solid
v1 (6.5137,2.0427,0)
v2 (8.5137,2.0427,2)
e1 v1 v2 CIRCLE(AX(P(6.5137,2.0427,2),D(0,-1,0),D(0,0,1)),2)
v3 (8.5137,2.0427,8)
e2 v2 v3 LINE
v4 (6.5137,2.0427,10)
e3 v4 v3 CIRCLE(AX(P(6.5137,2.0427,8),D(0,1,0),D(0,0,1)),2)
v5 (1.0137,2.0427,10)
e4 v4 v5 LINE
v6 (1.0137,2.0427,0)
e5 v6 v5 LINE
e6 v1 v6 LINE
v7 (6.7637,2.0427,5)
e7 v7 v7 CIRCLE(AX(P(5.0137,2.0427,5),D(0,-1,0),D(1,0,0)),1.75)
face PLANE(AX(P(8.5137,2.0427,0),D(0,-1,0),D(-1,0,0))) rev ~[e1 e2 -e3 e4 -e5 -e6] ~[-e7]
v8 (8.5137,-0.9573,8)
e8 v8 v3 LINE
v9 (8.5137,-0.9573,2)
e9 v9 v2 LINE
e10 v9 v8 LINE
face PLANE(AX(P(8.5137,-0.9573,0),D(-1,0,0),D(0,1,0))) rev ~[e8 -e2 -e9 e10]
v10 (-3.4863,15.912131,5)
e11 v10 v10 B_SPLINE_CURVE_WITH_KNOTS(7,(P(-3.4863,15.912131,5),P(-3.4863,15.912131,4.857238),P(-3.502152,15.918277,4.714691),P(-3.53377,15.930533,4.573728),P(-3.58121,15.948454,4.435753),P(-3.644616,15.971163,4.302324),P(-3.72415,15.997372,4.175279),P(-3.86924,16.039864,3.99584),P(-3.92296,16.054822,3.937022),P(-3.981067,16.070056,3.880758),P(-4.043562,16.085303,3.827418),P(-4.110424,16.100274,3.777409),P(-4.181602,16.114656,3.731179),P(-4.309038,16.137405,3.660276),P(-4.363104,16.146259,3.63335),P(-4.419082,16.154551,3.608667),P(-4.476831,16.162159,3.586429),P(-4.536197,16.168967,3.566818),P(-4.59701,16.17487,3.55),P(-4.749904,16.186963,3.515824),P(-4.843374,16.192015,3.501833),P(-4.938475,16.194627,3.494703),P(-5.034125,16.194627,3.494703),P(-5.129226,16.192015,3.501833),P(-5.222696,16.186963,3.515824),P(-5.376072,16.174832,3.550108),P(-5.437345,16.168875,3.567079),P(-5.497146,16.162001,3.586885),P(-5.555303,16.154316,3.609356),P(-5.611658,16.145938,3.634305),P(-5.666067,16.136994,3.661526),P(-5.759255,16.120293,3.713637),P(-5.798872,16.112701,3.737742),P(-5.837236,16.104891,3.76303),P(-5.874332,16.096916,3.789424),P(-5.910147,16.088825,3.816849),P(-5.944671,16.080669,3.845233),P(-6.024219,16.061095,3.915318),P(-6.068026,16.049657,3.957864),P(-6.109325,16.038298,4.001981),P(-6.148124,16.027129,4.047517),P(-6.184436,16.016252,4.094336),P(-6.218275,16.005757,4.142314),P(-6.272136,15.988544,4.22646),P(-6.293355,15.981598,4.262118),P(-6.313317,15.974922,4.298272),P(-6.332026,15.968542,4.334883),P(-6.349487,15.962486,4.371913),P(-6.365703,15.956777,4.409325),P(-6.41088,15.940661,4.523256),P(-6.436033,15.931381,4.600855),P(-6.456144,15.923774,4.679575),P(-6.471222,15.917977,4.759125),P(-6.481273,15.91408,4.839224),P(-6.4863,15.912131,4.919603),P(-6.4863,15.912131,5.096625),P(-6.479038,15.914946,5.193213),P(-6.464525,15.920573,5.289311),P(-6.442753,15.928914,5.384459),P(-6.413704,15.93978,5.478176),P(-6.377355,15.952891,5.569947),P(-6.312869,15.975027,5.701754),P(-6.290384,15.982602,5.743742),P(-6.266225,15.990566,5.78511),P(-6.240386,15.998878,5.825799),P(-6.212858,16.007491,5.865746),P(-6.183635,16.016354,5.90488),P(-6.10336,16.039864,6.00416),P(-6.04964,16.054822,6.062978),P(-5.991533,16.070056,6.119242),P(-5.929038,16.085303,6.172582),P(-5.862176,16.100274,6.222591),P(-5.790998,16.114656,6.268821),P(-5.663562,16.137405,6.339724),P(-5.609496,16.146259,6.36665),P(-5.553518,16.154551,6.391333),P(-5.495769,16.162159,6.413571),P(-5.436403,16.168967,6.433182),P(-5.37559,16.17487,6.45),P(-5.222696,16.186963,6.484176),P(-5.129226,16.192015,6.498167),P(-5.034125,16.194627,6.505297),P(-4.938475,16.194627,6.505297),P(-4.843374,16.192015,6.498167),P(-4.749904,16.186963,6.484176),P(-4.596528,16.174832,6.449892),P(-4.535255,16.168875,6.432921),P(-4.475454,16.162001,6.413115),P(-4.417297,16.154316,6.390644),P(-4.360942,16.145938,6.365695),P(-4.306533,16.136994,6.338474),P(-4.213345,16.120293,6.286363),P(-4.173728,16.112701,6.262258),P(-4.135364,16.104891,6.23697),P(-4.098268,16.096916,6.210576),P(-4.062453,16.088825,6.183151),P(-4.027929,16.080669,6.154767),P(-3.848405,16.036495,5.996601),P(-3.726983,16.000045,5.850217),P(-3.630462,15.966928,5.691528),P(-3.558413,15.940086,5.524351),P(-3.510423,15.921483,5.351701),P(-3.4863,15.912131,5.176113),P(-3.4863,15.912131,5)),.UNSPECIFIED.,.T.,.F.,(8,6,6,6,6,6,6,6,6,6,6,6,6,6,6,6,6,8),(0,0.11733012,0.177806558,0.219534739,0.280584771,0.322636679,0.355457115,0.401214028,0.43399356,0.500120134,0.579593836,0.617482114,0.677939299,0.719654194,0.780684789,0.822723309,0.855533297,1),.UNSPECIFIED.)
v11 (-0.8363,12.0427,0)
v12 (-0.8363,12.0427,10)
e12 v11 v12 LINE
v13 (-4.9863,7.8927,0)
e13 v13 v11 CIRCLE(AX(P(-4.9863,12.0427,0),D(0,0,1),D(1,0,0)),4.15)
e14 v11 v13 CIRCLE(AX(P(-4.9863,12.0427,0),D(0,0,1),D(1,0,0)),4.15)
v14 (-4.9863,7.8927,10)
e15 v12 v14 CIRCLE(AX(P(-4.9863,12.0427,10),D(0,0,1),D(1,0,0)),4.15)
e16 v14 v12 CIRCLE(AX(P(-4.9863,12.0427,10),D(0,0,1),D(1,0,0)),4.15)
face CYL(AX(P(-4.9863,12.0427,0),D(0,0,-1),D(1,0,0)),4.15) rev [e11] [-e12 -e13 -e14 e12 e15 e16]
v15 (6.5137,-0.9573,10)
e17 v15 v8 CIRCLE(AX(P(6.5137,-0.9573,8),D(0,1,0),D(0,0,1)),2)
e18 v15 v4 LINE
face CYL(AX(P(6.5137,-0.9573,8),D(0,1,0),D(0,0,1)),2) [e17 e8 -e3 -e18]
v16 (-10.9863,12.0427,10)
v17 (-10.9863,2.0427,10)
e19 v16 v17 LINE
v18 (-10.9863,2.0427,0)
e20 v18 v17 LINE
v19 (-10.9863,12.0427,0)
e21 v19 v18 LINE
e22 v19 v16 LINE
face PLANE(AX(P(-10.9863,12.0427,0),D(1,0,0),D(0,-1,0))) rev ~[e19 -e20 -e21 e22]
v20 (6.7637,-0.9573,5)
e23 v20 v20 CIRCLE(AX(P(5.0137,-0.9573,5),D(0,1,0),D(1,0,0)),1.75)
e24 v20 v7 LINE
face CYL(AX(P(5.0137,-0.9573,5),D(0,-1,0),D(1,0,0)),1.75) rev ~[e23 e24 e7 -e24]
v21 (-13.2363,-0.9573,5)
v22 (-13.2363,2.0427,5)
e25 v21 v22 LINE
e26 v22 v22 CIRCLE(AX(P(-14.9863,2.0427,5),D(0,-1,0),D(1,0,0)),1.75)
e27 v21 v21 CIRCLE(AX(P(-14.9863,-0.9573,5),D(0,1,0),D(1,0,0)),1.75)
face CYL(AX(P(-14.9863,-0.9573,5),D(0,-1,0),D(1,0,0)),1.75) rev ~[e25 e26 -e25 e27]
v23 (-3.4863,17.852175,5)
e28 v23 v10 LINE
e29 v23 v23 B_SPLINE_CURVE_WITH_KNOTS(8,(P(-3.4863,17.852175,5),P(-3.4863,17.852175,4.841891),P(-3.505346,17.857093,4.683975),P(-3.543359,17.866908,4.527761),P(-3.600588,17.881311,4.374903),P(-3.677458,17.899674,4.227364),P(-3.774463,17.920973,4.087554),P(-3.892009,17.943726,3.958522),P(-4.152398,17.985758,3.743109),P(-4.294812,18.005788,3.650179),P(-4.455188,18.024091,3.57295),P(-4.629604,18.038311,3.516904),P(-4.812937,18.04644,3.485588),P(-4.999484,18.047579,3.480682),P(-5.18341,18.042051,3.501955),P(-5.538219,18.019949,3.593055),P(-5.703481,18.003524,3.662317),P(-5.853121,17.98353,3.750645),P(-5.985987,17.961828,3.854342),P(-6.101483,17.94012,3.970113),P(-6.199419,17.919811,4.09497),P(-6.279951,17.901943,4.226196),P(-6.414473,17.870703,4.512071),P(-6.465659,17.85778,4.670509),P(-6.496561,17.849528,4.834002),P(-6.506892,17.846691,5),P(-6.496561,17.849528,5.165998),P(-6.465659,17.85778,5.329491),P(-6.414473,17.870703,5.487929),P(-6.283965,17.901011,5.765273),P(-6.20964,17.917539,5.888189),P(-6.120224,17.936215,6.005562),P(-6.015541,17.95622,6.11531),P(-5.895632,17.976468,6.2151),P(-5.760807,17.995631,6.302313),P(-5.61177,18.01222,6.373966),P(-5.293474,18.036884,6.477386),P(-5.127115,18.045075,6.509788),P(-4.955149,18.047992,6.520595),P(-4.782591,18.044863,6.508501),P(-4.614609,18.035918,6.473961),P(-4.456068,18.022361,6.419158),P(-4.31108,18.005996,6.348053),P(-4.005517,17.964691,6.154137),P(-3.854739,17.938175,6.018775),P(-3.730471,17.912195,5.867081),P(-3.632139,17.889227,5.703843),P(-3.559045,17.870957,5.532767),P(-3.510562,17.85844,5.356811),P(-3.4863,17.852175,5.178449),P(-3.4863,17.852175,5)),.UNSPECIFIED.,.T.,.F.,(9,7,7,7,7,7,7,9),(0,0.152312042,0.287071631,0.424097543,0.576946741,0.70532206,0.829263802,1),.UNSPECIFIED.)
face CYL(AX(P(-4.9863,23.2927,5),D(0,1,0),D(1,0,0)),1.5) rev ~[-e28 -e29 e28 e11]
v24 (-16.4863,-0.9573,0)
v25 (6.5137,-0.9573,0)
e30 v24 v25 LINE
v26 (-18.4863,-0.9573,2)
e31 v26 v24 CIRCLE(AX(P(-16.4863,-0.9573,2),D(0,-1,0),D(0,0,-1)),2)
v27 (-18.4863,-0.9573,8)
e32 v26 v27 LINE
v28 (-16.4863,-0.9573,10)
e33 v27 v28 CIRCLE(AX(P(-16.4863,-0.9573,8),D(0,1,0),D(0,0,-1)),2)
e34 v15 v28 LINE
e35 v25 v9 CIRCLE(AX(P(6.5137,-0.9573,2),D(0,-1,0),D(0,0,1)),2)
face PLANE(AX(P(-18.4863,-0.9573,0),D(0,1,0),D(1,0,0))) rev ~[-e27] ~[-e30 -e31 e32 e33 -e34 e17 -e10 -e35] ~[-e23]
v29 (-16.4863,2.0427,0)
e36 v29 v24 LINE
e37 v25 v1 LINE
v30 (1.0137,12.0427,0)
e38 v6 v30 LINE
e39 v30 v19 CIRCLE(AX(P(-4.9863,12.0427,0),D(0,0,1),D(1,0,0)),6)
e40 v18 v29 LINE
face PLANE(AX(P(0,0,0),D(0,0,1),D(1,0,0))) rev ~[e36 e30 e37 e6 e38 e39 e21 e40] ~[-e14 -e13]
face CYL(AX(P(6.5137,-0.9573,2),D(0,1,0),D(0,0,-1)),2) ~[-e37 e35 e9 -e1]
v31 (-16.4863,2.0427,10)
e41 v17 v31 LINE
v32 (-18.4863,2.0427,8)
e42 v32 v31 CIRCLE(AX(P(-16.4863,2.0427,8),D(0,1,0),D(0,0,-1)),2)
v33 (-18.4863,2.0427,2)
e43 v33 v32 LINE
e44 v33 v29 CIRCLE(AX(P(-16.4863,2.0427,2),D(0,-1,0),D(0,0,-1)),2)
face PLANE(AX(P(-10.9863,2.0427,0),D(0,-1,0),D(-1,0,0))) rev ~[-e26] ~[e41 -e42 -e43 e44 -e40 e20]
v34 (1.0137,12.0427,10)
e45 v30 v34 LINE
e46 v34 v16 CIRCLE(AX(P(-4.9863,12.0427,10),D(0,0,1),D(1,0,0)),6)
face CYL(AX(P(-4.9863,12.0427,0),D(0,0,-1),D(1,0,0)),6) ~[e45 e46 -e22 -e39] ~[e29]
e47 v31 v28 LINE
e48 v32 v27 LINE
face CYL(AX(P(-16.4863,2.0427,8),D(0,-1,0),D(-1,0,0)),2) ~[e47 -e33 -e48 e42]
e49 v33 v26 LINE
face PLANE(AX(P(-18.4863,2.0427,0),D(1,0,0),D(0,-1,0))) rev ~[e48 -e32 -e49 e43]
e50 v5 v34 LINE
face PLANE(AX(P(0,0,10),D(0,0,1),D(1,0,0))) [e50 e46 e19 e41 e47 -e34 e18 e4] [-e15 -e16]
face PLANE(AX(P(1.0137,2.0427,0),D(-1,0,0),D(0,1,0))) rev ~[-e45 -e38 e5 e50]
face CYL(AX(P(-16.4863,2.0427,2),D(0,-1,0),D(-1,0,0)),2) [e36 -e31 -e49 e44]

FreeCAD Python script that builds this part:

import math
import FreeCAD as App
import Part
import Sketcher


def edges_at(feature, points):
    """Names of the edges that pass closest to the given points."""
    edges = feature.Shape.Edges
    near = lambda p: min(range(len(edges)), key=lambda i: edges[i].distToShape(Part.Vertex(*p))[0])
    return sorted({f"Edge{near(p) + 1}" for p in points})

doc = App.newDocument("Part")
body = doc.addObject("PartDesign::Body", "Body")

sketch1 = doc.addObject("Sketcher::SketchObject", "Sketch")
body.addObject(sketch1)
sketch1.AttachmentSupport = (doc.XY_Plane, [""])
sketch1.MapMode = "FlatFace"
sketch1.addGeometry(Part.LineSegment(App.Vector(-18.5, 2, 0), App.Vector(-18.5, -1, 0)), False)
sketch1.addGeometry(Part.LineSegment(App.Vector(-18.5, -1, 0), App.Vector(8.5, -1, 0)), False)
sketch1.addGeometry(Part.LineSegment(App.Vector(8.5, -1, 0), App.Vector(8.5, 2, 0)), False)
sketch1.addGeometry(Part.LineSegment(App.Vector(8.5, 2, 0), App.Vector(1, 2, 0)), False)
sketch1.addGeometry(Part.LineSegment(App.Vector(1, 2, 0), App.Vector(1, 12, 0)), False)
sketch1.addGeometry(Part.ArcOfCircle(Part.Circle(App.Vector(-5, 12, 0), App.Vector(0, 0, 1), 6), math.radians(0), math.radians(180)), False)
sketch1.addGeometry(Part.LineSegment(App.Vector(-11, 12, 0), App.Vector(-11, 2, 0)), False)
sketch1.addGeometry(Part.LineSegment(App.Vector(-11, 2, 0), App.Vector(-18.5, 2, 0)), False)
sketch1.addGeometry(Part.Circle(App.Vector(-5, 12, 0), App.Vector(0, 0, 1), 4.2), False)
sketch1.addConstraint(Sketcher.Constraint("Coincident", 0, 2, 1, 1))
sketch1.addConstraint(Sketcher.Constraint("Coincident", 1, 2, 2, 1))
sketch1.addConstraint(Sketcher.Constraint("Coincident", 2, 2, 3, 1))
sketch1.addConstraint(Sketcher.Constraint("Coincident", 3, 2, 4, 1))
sketch1.addConstraint(Sketcher.Constraint("Tangent", 4, 2, 5, 1))
sketch1.addConstraint(Sketcher.Constraint("Tangent", 5, 2, 6, 1))
sketch1.addConstraint(Sketcher.Constraint("Coincident", 6, 2, 7, 1))
sketch1.addConstraint(Sketcher.Constraint("Coincident", 7, 2, 0, 1))
sketch1.addConstraint(Sketcher.Constraint("Vertical", 0))
sketch1.addConstraint(Sketcher.Constraint("Horizontal", 1))
sketch1.addConstraint(Sketcher.Constraint("Vertical", 2))
sketch1.addConstraint(Sketcher.Constraint("Horizontal", 3))
sketch1.addConstraint(Sketcher.Constraint("Vertical", 4))
sketch1.addConstraint(Sketcher.Constraint("Vertical", 6))
sketch1.addConstraint(Sketcher.Constraint("Horizontal", 7))
sketch1.addConstraint(Sketcher.Constraint("Coincident", 8, 3, 5, 3))
sketch1.addConstraint(Sketcher.Constraint("Horizontal", 3, 2, 6, 2))
sketch1.addConstraint(Sketcher.Constraint("Equal", 3, 7))
sketch1.addConstraint(Sketcher.Constraint("Radius", 5, 6.0))
sketch1.addConstraint(Sketcher.Constraint("Diameter", 8, 8.3))
sketch1.addConstraint(Sketcher.Constraint("DistanceX", 1, 1, 1, 2, 27.0))
sketch1.addConstraint(Sketcher.Constraint("DistanceY", 0, 2, 0, 1, 3.0))
sketch1.addConstraint(Sketcher.Constraint("DistanceY", 4, 1, 4, 2, 10.0))
sketch1.addConstraint(Sketcher.Constraint("DistanceX", 5, 3, -1, 1, 4.9863))
sketch1.addConstraint(Sketcher.Constraint("DistanceY", -1, 1, 5, 3, 12.0427))
pad1 = doc.addObject("PartDesign::Pad", "Pad")
body.addObject(pad1)
pad1.Profile = sketch1
pad1.Length = 10

sketch2 = doc.addObject("Sketcher::SketchObject", "Sketch001")
body.addObject(sketch2)
sketch2.AttachmentSupport = (doc.XZ_Plane, [""])
sketch2.MapMode = "FlatFace"
sketch2.AttachmentOffset = App.Placement(App.Vector(0, 0, 0.9573), App.Rotation())
sketch2.addGeometry(Part.Circle(App.Vector(-15, 5, 0), App.Vector(0, 0, 1), 1.8), False)
sketch2.addGeometry(Part.Circle(App.Vector(5, 5, 0), App.Vector(0, 0, 1), 1.8), False)
sketch2.addConstraint(Sketcher.Constraint("Equal", 0, 1))
sketch2.addConstraint(Sketcher.Constraint("Horizontal", 0, 3, 1, 3))
sketch2.addConstraint(Sketcher.Constraint("Diameter", 0, 3.5))
sketch2.addConstraint(Sketcher.Constraint("DistanceX", 0, 3, 1, 3, 20.0))
sketch2.addConstraint(Sketcher.Constraint("DistanceY", -1, 1, 0, 3, 5.0))
sketch2.addConstraint(Sketcher.Constraint("DistanceX", 0, 3, -1, 1, 14.9863))
pocket1 = doc.addObject("PartDesign::Pocket", "Pocket")
body.addObject(pocket1)
pocket1.Profile = sketch2
pocket1.Length = 3
doc.recompute()

fillet = doc.addObject("PartDesign::Fillet", "Fillet")
body.addObject(fillet)
fillet.Base = (pocket1, edges_at(pocket1, [
    (-18.486, 0.543, 0),
    (-18.486, 0.543, 10),
    (8.514, 0.543, 0),
    (8.514, 0.543, 10),
]))
fillet.Radius = 2

sketch3 = doc.addObject("Sketcher::SketchObject", "Sketch002")
body.addObject(sketch3)
sketch3.AttachmentSupport = (doc.XZ_Plane, [""])
sketch3.MapMode = "FlatFace"
sketch3.AttachmentOffset = App.Placement(App.Vector(0, 0, -23.2927), App.Rotation())
sketch3.addGeometry(Part.Circle(App.Vector(-5, 5, 0), App.Vector(0, 0, 1), 1.5), False)
sketch3.addConstraint(Sketcher.Constraint("Diameter", 0, 3.0))
sketch3.addConstraint(Sketcher.Constraint("DistanceY", -1, 1, 0, 3, 5.0))
sketch3.addConstraint(Sketcher.Constraint("DistanceX", 0, 3, -1, 1, 4.9863))
pocket2 = doc.addObject("PartDesign::Pocket", "Pocket001")
body.addObject(pocket2)
pocket2.Profile = sketch3
pocket2.Length = 10
pocket2.Reversed = True

doc.recompute()
